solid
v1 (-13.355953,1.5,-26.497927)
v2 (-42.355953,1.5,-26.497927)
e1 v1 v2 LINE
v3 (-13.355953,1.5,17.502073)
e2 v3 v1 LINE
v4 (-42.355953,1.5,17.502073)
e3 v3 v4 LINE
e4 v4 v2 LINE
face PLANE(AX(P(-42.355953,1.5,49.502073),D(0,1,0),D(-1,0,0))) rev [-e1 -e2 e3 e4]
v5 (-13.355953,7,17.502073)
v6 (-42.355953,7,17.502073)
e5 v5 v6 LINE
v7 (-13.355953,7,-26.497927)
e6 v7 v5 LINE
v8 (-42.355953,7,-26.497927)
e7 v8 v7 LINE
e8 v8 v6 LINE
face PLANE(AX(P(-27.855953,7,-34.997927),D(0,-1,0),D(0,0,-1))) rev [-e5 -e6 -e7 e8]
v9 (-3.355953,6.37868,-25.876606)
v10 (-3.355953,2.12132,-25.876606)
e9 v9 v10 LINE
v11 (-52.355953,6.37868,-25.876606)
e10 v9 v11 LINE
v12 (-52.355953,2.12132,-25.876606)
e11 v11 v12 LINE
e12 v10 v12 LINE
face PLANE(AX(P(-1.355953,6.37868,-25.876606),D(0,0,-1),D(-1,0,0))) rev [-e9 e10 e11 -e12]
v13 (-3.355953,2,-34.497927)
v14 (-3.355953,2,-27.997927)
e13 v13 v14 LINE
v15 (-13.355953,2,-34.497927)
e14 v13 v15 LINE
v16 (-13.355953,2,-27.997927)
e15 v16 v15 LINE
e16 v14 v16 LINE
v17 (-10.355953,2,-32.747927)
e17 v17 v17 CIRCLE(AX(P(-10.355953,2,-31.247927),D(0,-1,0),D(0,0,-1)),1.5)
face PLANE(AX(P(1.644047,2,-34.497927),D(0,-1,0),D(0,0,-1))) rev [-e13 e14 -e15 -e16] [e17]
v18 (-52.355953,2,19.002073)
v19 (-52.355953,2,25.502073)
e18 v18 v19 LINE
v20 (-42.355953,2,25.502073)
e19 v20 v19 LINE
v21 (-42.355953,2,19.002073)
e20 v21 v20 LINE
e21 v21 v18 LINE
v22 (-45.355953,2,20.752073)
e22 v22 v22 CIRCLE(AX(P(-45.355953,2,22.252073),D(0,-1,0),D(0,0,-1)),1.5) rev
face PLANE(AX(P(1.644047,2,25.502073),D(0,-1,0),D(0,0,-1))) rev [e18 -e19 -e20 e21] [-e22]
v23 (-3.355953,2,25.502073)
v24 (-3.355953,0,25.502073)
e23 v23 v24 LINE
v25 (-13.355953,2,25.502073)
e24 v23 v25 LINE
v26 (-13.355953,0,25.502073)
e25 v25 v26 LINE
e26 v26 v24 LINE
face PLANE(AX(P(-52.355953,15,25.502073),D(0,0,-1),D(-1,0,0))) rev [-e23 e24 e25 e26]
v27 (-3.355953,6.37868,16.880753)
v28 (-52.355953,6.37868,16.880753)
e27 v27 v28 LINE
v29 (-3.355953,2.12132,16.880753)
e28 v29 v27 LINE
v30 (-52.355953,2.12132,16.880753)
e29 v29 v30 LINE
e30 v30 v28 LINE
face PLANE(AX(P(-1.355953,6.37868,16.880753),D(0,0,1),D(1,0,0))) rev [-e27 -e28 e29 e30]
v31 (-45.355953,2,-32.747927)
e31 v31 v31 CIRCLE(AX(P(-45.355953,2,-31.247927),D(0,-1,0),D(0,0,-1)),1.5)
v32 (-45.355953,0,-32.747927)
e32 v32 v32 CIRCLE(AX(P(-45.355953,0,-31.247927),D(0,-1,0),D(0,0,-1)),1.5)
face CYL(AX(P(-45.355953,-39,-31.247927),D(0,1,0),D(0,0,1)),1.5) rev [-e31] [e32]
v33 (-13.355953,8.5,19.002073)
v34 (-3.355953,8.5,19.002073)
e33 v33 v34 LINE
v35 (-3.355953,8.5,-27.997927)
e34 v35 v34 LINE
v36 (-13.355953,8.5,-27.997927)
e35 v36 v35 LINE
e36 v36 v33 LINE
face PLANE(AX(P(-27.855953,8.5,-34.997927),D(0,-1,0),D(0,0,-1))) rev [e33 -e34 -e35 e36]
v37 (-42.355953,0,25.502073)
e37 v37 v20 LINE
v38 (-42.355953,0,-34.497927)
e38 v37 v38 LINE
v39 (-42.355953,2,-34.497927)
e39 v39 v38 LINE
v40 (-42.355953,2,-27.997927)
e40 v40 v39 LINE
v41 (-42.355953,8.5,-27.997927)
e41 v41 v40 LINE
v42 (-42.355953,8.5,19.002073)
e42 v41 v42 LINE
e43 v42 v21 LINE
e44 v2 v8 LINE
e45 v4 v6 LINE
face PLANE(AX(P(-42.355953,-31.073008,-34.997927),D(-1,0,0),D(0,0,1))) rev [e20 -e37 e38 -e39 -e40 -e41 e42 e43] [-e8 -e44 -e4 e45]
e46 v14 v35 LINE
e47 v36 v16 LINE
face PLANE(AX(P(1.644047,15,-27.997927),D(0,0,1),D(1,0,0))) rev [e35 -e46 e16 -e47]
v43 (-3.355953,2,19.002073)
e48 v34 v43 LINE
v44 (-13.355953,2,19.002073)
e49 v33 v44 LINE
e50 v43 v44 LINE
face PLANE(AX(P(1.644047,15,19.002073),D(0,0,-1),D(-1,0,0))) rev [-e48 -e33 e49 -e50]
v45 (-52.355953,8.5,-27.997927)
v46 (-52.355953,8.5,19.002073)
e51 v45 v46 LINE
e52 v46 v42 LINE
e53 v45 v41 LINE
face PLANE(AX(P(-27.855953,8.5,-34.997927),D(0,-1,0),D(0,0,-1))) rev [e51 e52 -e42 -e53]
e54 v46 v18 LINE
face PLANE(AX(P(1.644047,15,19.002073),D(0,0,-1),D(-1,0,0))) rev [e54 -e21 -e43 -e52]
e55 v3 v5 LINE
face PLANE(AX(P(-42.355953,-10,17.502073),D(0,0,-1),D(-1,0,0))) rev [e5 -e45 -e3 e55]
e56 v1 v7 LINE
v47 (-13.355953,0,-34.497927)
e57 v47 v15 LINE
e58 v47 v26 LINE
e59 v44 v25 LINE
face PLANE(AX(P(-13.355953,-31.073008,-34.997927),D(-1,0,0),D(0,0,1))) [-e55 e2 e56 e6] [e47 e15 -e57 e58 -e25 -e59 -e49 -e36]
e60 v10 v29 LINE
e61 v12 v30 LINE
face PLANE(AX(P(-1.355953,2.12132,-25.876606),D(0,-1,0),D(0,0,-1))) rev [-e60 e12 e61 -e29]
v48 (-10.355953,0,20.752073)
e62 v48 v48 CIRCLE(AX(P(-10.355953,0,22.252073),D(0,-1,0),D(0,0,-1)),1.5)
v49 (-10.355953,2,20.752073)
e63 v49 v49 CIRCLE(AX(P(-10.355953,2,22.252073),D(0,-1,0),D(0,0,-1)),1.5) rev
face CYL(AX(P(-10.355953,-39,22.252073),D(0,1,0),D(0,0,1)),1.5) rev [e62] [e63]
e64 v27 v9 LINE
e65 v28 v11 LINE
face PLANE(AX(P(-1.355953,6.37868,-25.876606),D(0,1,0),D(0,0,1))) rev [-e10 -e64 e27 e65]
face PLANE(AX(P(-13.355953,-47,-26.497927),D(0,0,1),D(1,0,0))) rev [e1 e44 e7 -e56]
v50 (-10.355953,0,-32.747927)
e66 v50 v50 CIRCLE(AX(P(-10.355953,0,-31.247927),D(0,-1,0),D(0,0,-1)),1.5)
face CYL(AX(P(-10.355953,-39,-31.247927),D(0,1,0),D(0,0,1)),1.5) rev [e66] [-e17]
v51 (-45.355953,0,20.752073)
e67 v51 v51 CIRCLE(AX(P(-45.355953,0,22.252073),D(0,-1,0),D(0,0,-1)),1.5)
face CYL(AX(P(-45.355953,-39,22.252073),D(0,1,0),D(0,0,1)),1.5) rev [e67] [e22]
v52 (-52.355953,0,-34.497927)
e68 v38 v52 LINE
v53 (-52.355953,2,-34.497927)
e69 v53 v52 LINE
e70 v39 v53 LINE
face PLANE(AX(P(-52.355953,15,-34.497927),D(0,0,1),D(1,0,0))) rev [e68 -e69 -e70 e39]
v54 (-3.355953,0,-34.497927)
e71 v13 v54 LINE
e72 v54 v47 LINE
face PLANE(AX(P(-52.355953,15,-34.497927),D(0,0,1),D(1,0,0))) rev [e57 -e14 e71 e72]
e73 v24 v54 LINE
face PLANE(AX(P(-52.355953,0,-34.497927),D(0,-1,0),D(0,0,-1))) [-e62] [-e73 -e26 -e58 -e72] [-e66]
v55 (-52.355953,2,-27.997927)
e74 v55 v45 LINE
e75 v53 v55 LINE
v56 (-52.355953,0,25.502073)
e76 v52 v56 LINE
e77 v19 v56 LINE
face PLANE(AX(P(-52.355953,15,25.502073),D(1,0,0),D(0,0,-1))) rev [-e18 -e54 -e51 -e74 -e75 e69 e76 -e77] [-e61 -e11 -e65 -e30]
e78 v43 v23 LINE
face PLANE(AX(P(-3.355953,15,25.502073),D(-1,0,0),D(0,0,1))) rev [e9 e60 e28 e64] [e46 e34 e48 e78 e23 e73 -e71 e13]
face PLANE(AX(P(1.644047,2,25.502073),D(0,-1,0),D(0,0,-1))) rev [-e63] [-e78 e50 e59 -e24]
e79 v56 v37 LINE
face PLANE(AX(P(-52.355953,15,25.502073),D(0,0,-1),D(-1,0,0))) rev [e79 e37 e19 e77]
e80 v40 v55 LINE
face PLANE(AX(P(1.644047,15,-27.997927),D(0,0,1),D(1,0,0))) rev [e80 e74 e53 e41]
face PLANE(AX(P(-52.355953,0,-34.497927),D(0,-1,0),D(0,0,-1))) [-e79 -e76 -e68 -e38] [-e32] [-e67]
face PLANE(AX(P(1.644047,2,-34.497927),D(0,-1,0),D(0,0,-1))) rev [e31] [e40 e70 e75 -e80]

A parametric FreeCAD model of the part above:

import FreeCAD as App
import Part
import Sketcher
Q = App.Units.Quantity


def add_polygon(sketch, points):
    """Adds a closed chain of lines whose ends are joined by coincident constraints."""
    first, n = sketch.GeometryCount, len(points)
    for a, b in zip(points, points[1:] + points[:1]):
        sketch.addGeometry(Part.LineSegment(App.Vector(*a, 0), App.Vector(*b, 0)), False)
    for i in range(n):
        sketch.addConstraint(Sketcher.Constraint("Coincident", first + i, 2, first + (i + 1) % n, 1))

doc = App.newDocument("Part")
body = doc.addObject("PartDesign::Body", "Body")

# Sketch on XZ plane
sketch1 = body.newObject("Sketcher::SketchObject", "Sketch")
sketch1.AttachmentSupport = (doc.getObject("XZ_Plane"), [""])
sketch1.MapMode = "FlatFace"
add_polygon(sketch1, [(-52, -34), (-52, 26), (-3, 26), (-3, -34)])  # lines 0-3
sketch1.addConstraint(Sketcher.Constraint("Vertical", 0))
sketch1.addConstraint(Sketcher.Constraint("Horizontal", 1))
sketch1.addConstraint(Sketcher.Constraint("Vertical", 2))
sketch1.addConstraint(Sketcher.Constraint("Horizontal", 3))
sketch1.addConstraint(Sketcher.Constraint("DistanceX", 1, 1, 1, 2, Q("49 mm")))
sketch1.addConstraint(Sketcher.Constraint("DistanceY", 0, 1, 0, 2, Q("60 mm")))
sketch1.addConstraint(Sketcher.Constraint("DistanceX", 0, 2, -1, 1, Q("52.355953 mm")))
sketch1.addConstraint(Sketcher.Constraint("DistanceY", -1, 1, 0, 2, Q("25.502073 mm")))
pad1 = body.newObject("PartDesign::Pad", "Pad")
pad1.Profile = sketch1
pad1.Length = 15
pad1.Reversed = True

# Sketch on YZ plane
sketch2 = body.newObject("Sketcher::SketchObject", "Sketch001")
sketch2.AttachmentSupport = (doc.getObject("YZ_Plane"), [""])
sketch2.MapMode = "FlatFace"
sketch2.AttachmentOffset = App.Placement(App.Vector(0, 0, -52.355953), App.Rotation())
add_polygon(sketch2, [(15, -34), (2, -34), (2, -28), (15, -28)])  # lines 0-3
sketch2.addConstraint(Sketcher.Constraint("Horizontal", 0))
sketch2.addConstraint(Sketcher.Constraint("Vertical", 1))
sketch2.addConstraint(Sketcher.Constraint("Horizontal", 2))
sketch2.addConstraint(Sketcher.Constraint("Vertical", 3))
sketch2.addConstraint(Sketcher.Constraint("DistanceX", 0, 2, 0, 1, Q("13 mm")))
sketch2.addConstraint(Sketcher.Constraint("DistanceY", 1, 1, 1, 2, Q("6.5 mm")))
sketch2.addConstraint(Sketcher.Constraint("DistanceX", -1, 1, 0, 2, Q("2 mm")))
sketch2.addConstraint(Sketcher.Constraint("DistanceY", 0, 2, -1, 1, Q("34.497927 mm")))
pocket1 = body.newObject("PartDesign::Pocket", "Pocket")
pocket1.Profile = sketch2
pocket1.Length = 54
pocket1.Reversed = True

# Sketch on XZ plane
sketch3 = body.newObject("Sketcher::SketchObject", "Sketch002")
sketch3.AttachmentSupport = (doc.getObject("XZ_Plane"), [""])
sketch3.MapMode = "FlatFace"
sketch3.AttachmentOffset = App.Placement(App.Vector(0, 0, -15), App.Rotation())
sketch3.addGeometry(Part.Circle(App.Vector(-45.4, -31.2, 0), App.Vector(0, 0, 1), 1.5), False)
sketch3.addGeometry(Part.Circle(App.Vector(-10.4, -31.2, 0), App.Vector(0, 0, 1), 1.5), False)
sketch3.addGeometry(Part.Circle(App.Vector(-10.4, 22.3, 0), App.Vector(0, 0, 1), 1.5), False)
sketch3.addGeometry(Part.Circle(App.Vector(-45.4, 22.3, 0), App.Vector(0, 0, 1), 1.5), False)
sketch3.addConstraint(Sketcher.Constraint("Equal", 0, 1))
sketch3.addConstraint(Sketcher.Constraint("Equal", 1, 2))
sketch3.addConstraint(Sketcher.Constraint("Equal", 2, 3))
sketch3.addConstraint(Sketcher.Constraint("Horizontal", 0, 3, 1, 3))
sketch3.addConstraint(Sketcher.Constraint("Horizontal", 2, 3, 3, 3))
sketch3.addConstraint(Sketcher.Constraint("Vertical", 1, 3, 2, 3))
sketch3.addConstraint(Sketcher.Constraint("Vertical", 0, 3, 3, 3))
sketch3.addConstraint(Sketcher.Constraint("Diameter", 0, Q("3 mm")))
sketch3.addConstraint(Sketcher.Constraint("DistanceX", 0, 3, 1, 3, Q("35 mm")))
sketch3.addConstraint(Sketcher.Constraint("DistanceY", 1, 3, 2, 3, Q("53.5 mm")))
sketch3.addConstraint(Sketcher.Constraint("DistanceX", 0, 3, -1, 1, Q("45.355953 mm")))
sketch3.addConstraint(Sketcher.Constraint("DistanceY", 0, 3, -1, 1, Q("31.247927 mm")))
pocket2 = body.newObject("PartDesign::Pocket", "Pocket001")
pocket2.Profile = sketch3
pocket2.Length = 54
pocket2.Reversed = True

# Sketch on YZ plane
sketch4 = body.newObject("Sketcher::SketchObject", "Sketch003")
sketch4.AttachmentSupport = (doc.getObject("YZ_Plane"), [""])
sketch4.MapMode = "FlatFace"
sketch4.AttachmentOffset = App.Placement(App.Vector(0, 0, -52.355953), App.Rotation())
add_polygon(sketch4, [(15, 19), (2, 19), (2, 26), (15, 26)])  # lines 0-3
sketch4.addConstraint(Sketcher.Constraint("Horizontal", 0))
sketch4.addConstraint(Sketcher.Constraint("Vertical", 1))
sketch4.addConstraint(Sketcher.Constraint("Horizontal", 2))
sketch4.addConstraint(Sketcher.Constraint("Vertical", 3))
sketch4.addConstraint(Sketcher.Constraint("DistanceX", 0, 2, 0, 1, Q("13 mm")))
sketch4.addConstraint(Sketcher.Constraint("DistanceY", 1, 1, 1, 2, Q("6.5 mm")))
sketch4.addConstraint(Sketcher.Constraint("DistanceX", -1, 1, 0, 2, Q("2 mm")))
sketch4.addConstraint(Sketcher.Constraint("DistanceY", -1, 1, 0, 2, Q("19.002073 mm")))
pocket3 = body.newObject("PartDesign::Pocket", "Pocket002")
pocket3.Profile = sketch4
pocket3.Length = 54
pocket3.Reversed = True

# Sketch on XY plane
sketch5 = body.newObject("Sketcher::SketchObject", "Sketch004")
sketch5.AttachmentSupport = (doc.getObject("XY_Plane"), [""])
sketch5.MapMode = "FlatFace"
sketch5.AttachmentOffset = App.Placement(App.Vector(0, 0, 19.002073), App.Rotation())
add_polygon(sketch5, [(-52.4, 8.5), (-42.4, 8.5), (-42.4, 7), (-13.4, 7), (-13.4, 8.5), (-3.4, 8.5), (-3.4, 15), (-52.4, 15)])  # lines 0-7
sketch5.addConstraint(Sketcher.Constraint("Horizontal", 0))
sketch5.addConstraint(Sketcher.Constraint("Vertical", 1))
sketch5.addConstraint(Sketcher.Constraint("Horizontal", 2))
sketch5.addConstraint(Sketcher.Constraint("Vertical", 3))
sketch5.addConstraint(Sketcher.Constraint("Horizontal", 4))
sketch5.addConstraint(Sketcher.Constraint("Vertical", 5))
sketch5.addConstraint(Sketcher.Constraint("Horizontal", 6))
sketch5.addConstraint(Sketcher.Constraint("Vertical", 7))
sketch5.addConstraint(Sketcher.Constraint("Horizontal", 0, 2, 3, 2))
sketch5.addConstraint(Sketcher.Constraint("Equal", 0, 4))
sketch5.addConstraint(Sketcher.Constraint("DistanceX", 0, 1, 0, 2, Q("10 mm")))
sketch5.addConstraint(Sketcher.Constraint("DistanceX", 2, 1, 2, 2, Q("29 mm")))
sketch5.addConstraint(Sketcher.Constraint("DistanceY", 1, 2, 1, 1, Q("1.5 mm")))
sketch5.addConstraint(Sketcher.Constraint("DistanceY", 5, 1, 5, 2, Q("6.5 mm")))
sketch5.addConstraint(Sketcher.Constraint("DistanceY", -1, 1, 1, 2, Q("7 mm")))
sketch5.addConstraint(Sketcher.Constraint("DistanceX", 0, 2, -1, 1, Q("42.355953 mm")))
pocket4 = body.newObject("PartDesign::Pocket", "Pocket003")
pocket4.Profile = sketch5
pocket4.Length = 54

# Sketch on XZ plane
sketch6 = body.newObject("Sketcher::SketchObject", "Sketch005")
sketch6.AttachmentSupport = (doc.getObject("XZ_Plane"), [""])
sketch6.MapMode = "FlatFace"
sketch6.AttachmentOffset = App.Placement(App.Vector(0, 0, -7), App.Rotation())
add_polygon(sketch6, [(-13.4, -26.5), (-13.4, -28), (-42.4, -28), (-42.4, -26.5)])  # lines 0-3
sketch6.addConstraint(Sketcher.Constraint("Vertical", 0))
sketch6.addConstraint(Sketcher.Constraint("Horizontal", 1))
sketch6.addConstraint(Sketcher.Constraint("Vertical", 2))
sketch6.addConstraint(Sketcher.Constraint("Horizontal", 3))
sketch6.addConstraint(Sketcher.Constraint("DistanceX", 1, 2, 1, 1, Q("29 mm")))
sketch6.addConstraint(Sketcher.Constraint("DistanceY", 0, 2, 0, 1, Q("1.5 mm")))
sketch6.addConstraint(Sketcher.Constraint("DistanceX", 0, 2, -1, 1, Q("13.355953 mm")))
sketch6.addConstraint(Sketcher.Constraint("DistanceY", 0, 2, -1, 1, Q("27.997927 mm")))
pocket5 = body.newObject("PartDesign::Pocket", "Pocket004")
pocket5.Profile = sketch6
pocket5.Length = 54
pocket5.Reversed = True

# Sketch on XY plane
sketch7 = body.newObject("Sketcher::SketchObject", "Sketch006")
sketch7.AttachmentSupport = (doc.getObject("XY_Plane"), [""])
sketch7.MapMode = "FlatFace"
sketch7.AttachmentOffset = App.Placement(App.Vector(0, 0, -26.497927), App.Rotation())
add_polygon(sketch7, [(-13.4, 1.5), (-13.4, 0), (-42.4, 0), (-42.4, 1.5)])  # lines 0-3
sketch7.addConstraint(Sketcher.Constraint("Vertical", 0))
sketch7.addConstraint(Sketcher.Constraint("Horizontal", 1))
sketch7.addConstraint(Sketcher.Constraint("Vertical", 2))
sketch7.addConstraint(Sketcher.Constraint("Horizontal", 3))
sketch7.addConstraint(Sketcher.Constraint("PointOnObject", 0, 2, -1))
sketch7.addConstraint(Sketcher.Constraint("DistanceX", 1, 2, 1, 1, Q("29 mm")))
sketch7.addConstraint(Sketcher.Constraint("DistanceY", 0, 2, 0, 1, Q("1.5 mm")))
sketch7.addConstraint(Sketcher.Constraint("DistanceX", 0, 2, -1, 1, Q("13.355953 mm")))
pocket6 = body.newObject("PartDesign::Pocket", "Pocket005")
pocket6.Profile = sketch7
pocket6.Type = "ThroughAll"
pocket6.Midplane = True

# Sketch on XZ plane
sketch8 = body.newObject("Sketcher::SketchObject", "Sketch007")
sketch8.AttachmentSupport = (doc.getObject("XZ_Plane"), [""])
sketch8.MapMode = "FlatFace"
sketch8.AttachmentOffset = App.Placement(App.Vector(0, 0, -7), App.Rotation())
add_polygon(sketch8, [(-13.4, 19), (-13.4, 17.5), (-42.4, 17.5), (-42.4, 19)])  # lines 0-3
sketch8.addConstraint(Sketcher.Constraint("Vertical", 0))
sketch8.addConstraint(Sketcher.Constraint("Horizontal", 1))
sketch8.addConstraint(Sketcher.Constraint("Vertical", 2))
sketch8.addConstraint(Sketcher.Constraint("Horizontal", 3))
sketch8.addConstraint(Sketcher.Constraint("DistanceX", 1, 2, 1, 1, Q("29 mm")))
sketch8.addConstraint(Sketcher.Constraint("DistanceY", 0, 2, 0, 1, Q("1.5 mm")))
sketch8.addConstraint(Sketcher.Constraint("DistanceX", 0, 2, -1, 1, Q("13.355953 mm")))
sketch8.addConstraint(Sketcher.Constraint("DistanceY", -1, 1, 0, 2, Q("17.502073 mm")))
pocket7 = body.newObject("PartDesign::Pocket", "Pocket006")
pocket7.Profile = sketch8
pocket7.Length = 17
pocket7.Reversed = True

# Sketch on XY plane
sketch9 = body.newObject("Sketcher::SketchObject", "Sketch008")
sketch9.AttachmentSupport = (doc.getObject("XY_Plane"), [""])
sketch9.MapMode = "FlatFace"
sketch9.AttachmentOffset = App.Placement(App.Vector(0, 0, 25.502073), App.Rotation())
add_polygon(sketch9, [(-42.4, 2), (-42.4, 1.5), (-13.4, 1.5), (-13.4, 2)])  # lines 0-3
sketch9.addConstraint(Sketcher.Constraint("Vertical", 0))
sketch9.addConstraint(Sketcher.Constraint("Horizontal", 1))
sketch9.addConstraint(Sketcher.Constraint("Vertical", 2))
sketch9.addConstraint(Sketcher.Constraint("Horizontal", 3))
sketch9.addConstraint(Sketcher.Constraint("DistanceX", 1, 1, 1, 2, Q("29 mm")))
sketch9.addConstraint(Sketcher.Constraint("DistanceY", 0, 2, 0, 1, Q("0.5 mm")))
sketch9.addConstraint(Sketcher.Constraint("DistanceY", -1, 1, 2, 2, Q("2 mm")))
sketch9.addConstraint(Sketcher.Constraint("DistanceX", 0, 2, -1, 1, Q("42.355953 mm")))
pocket8 = body.newObject("PartDesign::Pocket", "Pocket007")
pocket8.Profile = sketch9
pocket8.Length = 7

# Sketch on XY plane
sketch10 = body.newObject("Sketcher::SketchObject", "Sketch009")
sketch10.AttachmentSupport = (doc.getObject("XY_Plane"), [""])
sketch10.MapMode = "FlatFace"
sketch10.AttachmentOffset = App.Placement(App.Vector(0, 0, -34.497927), App.Rotation())
add_polygon(sketch10, [(-13.4, 2), (-13.4, 1.5), (-42.4, 1.5), (-42.4, 2)])  # lines 0-3
sketch10.addConstraint(Sketcher.Constraint("Vertical", 0))
sketch10.addConstraint(Sketcher.Constraint("Horizontal", 1))
sketch10.addConstraint(Sketcher.Constraint("Vertical", 2))
sketch10.addConstraint(Sketcher.Constraint("Horizontal", 3))
sketch10.addConstraint(Sketcher.Constraint("DistanceX", 1, 2, 1, 1, Q("29 mm")))
sketch10.addConstraint(Sketcher.Constraint("DistanceY", 0, 2, 0, 1, Q("0.5 mm")))
sketch10.addConstraint(Sketcher.Constraint("DistanceY", -1, 1, 2, 2, Q("2 mm")))
sketch10.addConstraint(Sketcher.Constraint("DistanceX", 0, 2, -1, 1, Q("13.355953 mm")))
pocket9 = body.newObject("PartDesign::Pocket", "Pocket008")
pocket9.Profile = sketch10
pocket9.Length = 7
pocket9.Reversed = True

# Sketch on YZ plane
sketch11 = body.newObject("Sketcher::SketchObject", "Sketch010")
sketch11.AttachmentSupport = (doc.getObject("YZ_Plane"), [""])
sketch11.MapMode = "FlatFace"
sketch11.AttachmentOffset = App.Placement(App.Vector(0, 0, -52.355953), App.Rotation())
add_polygon(sketch11, [(6.4, -25.9), (2.1, -25.9), (2.1, 16.9), (6.4, 16.9)])  # lines 0-3
sketch11.addConstraint(Sketcher.Constraint("Horizontal", 0))
sketch11.addConstraint(Sketcher.Constraint("Vertical", 1))
sketch11.addConstraint(Sketcher.Constraint("Horizontal", 2))
sketch11.addConstraint(Sketcher.Constraint("Vertical", 3))
sketch11.addConstraint(Sketcher.Constraint("DistanceX", 0, 2, 0, 1, Q("4.257359 mm")))
sketch11.addConstraint(Sketcher.Constraint("DistanceY", 1, 1, 1, 2, Q("42.757359 mm")))
sketch11.addConstraint(Sketcher.Constraint("DistanceX", -1, 1, 0, 2, Q("2.12132 mm")))
sketch11.addConstraint(Sketcher.Constraint("DistanceY", 0, 2, -1, 1, Q("25.876606 mm")))
pocket10 = body.newObject("PartDesign::Pocket", "Pocket009")
pocket10.Profile = sketch11
pocket10.Length = 51
pocket10.Reversed = True

doc.recompute()
